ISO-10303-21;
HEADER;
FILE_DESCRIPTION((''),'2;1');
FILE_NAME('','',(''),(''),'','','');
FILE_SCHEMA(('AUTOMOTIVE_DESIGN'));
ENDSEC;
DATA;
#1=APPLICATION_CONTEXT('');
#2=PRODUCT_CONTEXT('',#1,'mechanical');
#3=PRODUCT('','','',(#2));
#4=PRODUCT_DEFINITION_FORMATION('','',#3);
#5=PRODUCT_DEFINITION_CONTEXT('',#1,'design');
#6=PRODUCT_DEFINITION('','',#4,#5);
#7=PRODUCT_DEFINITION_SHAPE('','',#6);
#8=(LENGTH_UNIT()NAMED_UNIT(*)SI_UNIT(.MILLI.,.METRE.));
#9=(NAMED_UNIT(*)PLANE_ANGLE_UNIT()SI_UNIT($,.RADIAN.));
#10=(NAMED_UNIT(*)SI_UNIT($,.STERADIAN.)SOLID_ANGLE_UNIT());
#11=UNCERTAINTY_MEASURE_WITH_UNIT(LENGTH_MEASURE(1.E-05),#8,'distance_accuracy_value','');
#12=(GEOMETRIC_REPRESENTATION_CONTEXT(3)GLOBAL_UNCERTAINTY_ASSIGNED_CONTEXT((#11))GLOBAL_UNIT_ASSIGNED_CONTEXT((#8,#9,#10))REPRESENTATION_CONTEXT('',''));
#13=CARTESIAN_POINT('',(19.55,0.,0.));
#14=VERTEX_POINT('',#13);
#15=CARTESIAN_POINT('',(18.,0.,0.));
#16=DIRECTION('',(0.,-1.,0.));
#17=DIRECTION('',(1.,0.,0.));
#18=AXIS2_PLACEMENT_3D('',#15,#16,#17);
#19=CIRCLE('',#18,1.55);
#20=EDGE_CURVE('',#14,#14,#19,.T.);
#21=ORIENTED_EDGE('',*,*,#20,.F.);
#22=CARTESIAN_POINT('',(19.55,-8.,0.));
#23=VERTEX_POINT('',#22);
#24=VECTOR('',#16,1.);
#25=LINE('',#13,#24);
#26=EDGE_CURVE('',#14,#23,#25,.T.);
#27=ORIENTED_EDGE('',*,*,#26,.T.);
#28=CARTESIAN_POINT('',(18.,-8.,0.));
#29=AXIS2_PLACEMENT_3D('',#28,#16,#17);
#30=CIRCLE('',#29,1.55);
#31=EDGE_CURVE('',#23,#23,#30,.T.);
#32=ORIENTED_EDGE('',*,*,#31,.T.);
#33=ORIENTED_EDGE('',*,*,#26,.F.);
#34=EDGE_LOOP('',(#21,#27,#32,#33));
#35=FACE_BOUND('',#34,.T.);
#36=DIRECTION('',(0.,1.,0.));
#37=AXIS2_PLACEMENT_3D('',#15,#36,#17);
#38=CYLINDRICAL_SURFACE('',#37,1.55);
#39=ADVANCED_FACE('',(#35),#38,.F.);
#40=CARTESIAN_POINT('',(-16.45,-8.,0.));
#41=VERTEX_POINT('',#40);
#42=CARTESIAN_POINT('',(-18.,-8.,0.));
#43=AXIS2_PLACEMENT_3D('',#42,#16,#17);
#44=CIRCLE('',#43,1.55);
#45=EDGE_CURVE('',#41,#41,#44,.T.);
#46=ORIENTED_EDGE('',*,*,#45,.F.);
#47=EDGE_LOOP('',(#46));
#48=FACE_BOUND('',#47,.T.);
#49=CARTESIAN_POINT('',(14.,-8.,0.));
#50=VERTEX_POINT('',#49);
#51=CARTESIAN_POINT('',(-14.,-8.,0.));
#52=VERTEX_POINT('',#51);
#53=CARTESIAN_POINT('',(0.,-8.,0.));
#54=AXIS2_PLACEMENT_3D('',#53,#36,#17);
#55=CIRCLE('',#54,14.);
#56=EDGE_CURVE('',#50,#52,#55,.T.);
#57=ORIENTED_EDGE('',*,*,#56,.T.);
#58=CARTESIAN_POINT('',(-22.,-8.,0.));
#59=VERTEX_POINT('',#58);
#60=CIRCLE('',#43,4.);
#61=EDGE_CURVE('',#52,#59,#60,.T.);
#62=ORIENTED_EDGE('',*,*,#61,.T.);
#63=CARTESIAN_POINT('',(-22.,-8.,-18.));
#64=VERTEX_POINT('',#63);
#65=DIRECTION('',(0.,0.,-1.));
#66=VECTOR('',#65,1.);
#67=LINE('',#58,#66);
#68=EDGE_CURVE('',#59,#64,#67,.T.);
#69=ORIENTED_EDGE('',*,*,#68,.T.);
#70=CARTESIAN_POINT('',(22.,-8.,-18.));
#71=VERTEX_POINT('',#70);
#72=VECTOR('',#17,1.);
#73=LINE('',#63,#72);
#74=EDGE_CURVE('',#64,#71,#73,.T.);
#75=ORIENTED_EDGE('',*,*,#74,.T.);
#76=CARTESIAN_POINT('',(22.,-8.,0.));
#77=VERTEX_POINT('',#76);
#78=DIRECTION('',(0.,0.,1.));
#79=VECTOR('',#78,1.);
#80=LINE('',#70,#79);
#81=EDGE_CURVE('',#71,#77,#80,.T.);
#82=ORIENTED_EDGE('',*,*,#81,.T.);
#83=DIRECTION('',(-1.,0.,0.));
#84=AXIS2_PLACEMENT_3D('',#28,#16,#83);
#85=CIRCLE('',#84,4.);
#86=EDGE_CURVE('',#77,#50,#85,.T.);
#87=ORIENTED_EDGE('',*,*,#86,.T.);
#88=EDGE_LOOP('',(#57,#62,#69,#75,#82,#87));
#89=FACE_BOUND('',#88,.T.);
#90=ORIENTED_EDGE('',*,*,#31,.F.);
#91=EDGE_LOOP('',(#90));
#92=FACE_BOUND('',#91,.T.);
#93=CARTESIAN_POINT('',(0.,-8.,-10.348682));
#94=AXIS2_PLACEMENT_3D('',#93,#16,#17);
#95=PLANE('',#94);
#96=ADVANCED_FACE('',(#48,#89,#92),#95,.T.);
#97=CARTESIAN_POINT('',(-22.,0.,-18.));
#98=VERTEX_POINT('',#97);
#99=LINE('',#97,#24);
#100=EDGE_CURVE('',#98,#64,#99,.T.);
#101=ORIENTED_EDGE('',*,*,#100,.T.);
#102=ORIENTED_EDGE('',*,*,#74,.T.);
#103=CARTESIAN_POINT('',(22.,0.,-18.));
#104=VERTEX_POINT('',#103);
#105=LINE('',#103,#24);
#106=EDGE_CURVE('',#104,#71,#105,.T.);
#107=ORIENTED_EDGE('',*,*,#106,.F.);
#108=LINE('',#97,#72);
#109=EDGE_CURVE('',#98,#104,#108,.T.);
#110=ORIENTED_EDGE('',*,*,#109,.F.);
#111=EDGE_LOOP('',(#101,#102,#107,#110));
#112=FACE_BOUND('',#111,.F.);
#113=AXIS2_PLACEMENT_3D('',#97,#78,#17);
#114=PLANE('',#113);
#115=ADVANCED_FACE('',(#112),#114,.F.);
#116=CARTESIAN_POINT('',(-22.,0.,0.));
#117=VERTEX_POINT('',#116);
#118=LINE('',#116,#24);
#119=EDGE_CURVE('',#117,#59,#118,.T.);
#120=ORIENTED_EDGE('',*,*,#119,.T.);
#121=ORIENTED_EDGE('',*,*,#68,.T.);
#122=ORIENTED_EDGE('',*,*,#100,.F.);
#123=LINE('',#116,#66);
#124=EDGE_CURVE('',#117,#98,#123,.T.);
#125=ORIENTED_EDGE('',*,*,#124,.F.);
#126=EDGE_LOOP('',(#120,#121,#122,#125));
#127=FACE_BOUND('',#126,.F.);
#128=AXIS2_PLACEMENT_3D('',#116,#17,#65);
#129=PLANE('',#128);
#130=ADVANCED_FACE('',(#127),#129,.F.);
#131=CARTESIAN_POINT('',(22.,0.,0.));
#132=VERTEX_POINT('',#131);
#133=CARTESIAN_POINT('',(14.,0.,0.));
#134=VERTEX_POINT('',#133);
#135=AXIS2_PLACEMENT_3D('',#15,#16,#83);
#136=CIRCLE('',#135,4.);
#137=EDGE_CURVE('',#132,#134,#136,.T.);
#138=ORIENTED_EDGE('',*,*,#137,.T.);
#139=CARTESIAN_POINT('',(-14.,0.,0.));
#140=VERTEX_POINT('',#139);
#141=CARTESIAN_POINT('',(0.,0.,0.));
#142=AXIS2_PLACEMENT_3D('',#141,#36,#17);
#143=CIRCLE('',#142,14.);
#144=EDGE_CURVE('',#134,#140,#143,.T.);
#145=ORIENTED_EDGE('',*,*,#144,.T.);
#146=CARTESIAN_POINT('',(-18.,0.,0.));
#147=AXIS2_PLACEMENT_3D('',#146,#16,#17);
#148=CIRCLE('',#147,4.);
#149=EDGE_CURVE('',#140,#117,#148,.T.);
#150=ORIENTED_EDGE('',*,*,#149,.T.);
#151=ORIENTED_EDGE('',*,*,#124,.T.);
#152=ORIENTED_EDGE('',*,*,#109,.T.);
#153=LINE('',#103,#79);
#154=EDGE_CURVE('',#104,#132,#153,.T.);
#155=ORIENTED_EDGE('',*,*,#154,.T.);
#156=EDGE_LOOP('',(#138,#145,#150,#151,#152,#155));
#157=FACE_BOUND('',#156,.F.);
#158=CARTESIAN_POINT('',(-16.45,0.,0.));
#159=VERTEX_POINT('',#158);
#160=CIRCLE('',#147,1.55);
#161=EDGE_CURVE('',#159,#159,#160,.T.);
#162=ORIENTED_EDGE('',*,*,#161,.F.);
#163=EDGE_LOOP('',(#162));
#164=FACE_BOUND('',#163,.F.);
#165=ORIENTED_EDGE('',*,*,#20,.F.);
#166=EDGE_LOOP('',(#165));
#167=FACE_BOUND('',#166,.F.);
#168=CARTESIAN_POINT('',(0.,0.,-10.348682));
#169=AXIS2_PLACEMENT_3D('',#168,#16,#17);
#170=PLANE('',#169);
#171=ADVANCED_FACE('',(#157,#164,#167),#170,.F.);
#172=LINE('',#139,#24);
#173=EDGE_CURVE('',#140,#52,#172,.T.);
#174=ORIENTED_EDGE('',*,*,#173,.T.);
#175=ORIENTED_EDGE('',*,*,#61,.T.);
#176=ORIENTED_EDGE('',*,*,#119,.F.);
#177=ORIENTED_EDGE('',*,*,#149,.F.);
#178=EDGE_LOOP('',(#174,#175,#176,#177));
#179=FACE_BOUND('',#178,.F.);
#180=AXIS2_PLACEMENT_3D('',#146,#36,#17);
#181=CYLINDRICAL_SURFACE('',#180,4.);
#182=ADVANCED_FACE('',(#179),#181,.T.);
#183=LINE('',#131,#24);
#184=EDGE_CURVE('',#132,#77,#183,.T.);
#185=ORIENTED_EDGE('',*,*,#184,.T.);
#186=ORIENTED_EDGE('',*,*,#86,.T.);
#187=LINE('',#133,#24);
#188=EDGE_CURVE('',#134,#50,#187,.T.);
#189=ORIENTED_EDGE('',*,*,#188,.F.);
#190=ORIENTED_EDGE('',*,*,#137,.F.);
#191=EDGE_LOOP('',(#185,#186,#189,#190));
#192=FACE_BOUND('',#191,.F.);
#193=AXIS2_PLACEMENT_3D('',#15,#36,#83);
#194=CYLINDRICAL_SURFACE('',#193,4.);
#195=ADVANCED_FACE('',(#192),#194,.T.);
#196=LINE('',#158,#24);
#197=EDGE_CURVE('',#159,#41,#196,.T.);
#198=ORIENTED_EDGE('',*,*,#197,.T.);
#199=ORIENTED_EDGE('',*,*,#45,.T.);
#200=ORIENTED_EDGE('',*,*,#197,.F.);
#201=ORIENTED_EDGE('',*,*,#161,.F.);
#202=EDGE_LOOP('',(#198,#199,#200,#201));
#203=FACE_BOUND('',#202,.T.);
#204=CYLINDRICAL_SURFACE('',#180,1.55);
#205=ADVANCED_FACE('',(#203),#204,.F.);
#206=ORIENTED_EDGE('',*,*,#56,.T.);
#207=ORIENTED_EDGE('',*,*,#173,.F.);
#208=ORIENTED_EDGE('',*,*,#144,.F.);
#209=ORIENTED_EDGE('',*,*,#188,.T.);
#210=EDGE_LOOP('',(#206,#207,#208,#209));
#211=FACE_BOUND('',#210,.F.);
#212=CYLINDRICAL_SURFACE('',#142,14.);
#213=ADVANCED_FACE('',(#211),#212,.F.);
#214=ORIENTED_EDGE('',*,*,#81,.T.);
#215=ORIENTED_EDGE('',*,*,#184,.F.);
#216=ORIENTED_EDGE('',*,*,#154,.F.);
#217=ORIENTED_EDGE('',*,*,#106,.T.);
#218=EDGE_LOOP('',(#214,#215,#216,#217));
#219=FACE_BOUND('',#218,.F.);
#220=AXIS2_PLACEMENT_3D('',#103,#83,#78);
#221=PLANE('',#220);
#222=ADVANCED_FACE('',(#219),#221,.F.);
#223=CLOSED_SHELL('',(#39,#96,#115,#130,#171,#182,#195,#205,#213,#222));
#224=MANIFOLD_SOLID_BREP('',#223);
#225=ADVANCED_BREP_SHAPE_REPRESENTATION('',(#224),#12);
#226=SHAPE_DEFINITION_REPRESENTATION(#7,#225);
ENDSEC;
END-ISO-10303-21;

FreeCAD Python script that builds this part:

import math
import FreeCAD as App
import Part
import Sketcher
from FreeCAD import Vector
Q = App.Units.Quantity

doc = App.newDocument("Part")
body = doc.addObject("PartDesign::Body", "Body")

# Sketch on XZ plane
sketch1 = body.newObject("Sketcher::SketchObject", "Sketch")
sketch1.AttachmentSupport = (doc.getObject("XZ_Plane"), [""])
sketch1.MapMode = "FlatFace"
sketch1.addGeometry([
    Part.ArcOfCircle(Part.Circle(Vector(0, 0, 0), Vector(0, 0, 1), 14), math.radians(180), math.radians(360)),  # 0
    Part.ArcOfCircle(Part.Circle(Vector(-18, 0, 0), Vector(0, 0, 1), 4), math.radians(0), math.radians(180)),  # 1
    Part.LineSegment(Vector(-22, 0, 0), Vector(-22, -18, 0)),  # 2
    Part.LineSegment(Vector(-22, -18, 0), Vector(22, -18, 0)),  # 3
    Part.LineSegment(Vector(22, -18, 0), Vector(22, 0, 0)),  # 4
    Part.ArcOfCircle(Part.Circle(Vector(18, 0, 0), Vector(0, 0, 1), 4), math.radians(0), math.radians(180)),  # 5
    Part.Circle(Vector(-18, 0, 0), Vector(0, 0, 1), 1.6),  # 6
    Part.Circle(Vector(18, 0, 0), Vector(0, 0, 1), 1.6),  # 7
], False)
sketch1.addConstraint([
    Sketcher.Constraint("Tangent", 0, 1, 1, 1),
    Sketcher.Constraint("Tangent", 1, 2, 2, 1),
    Sketcher.Constraint("Coincident", 2, 2, 3, 1),
    Sketcher.Constraint("Coincident", 3, 2, 4, 1),
    Sketcher.Constraint("Tangent", 4, 2, 5, 1),
    Sketcher.Constraint("Tangent", 5, 2, 0, 2),
    Sketcher.Constraint("Vertical", 2),
    Sketcher.Constraint("Horizontal", 3),
    Sketcher.Constraint("Vertical", 4),
    Sketcher.Constraint("Coincident", 0, 3, -1, 1),
    Sketcher.Constraint("Coincident", 6, 3, 1, 3),
    Sketcher.Constraint("Coincident", 7, 3, 5, 3),
    Sketcher.Constraint("Equal", 1, 5),
    Sketcher.Constraint("Equal", 6, 7),
    Sketcher.Constraint("PointOnObject", 1, 3, -1),
    Sketcher.Constraint("PointOnObject", 5, 3, -1),
    Sketcher.Constraint("Radius", 0, Q("14 mm")),
    Sketcher.Constraint("Radius", 1, Q("4 mm")),
    Sketcher.Constraint("Diameter", 6, Q("3.1 mm")),
    Sketcher.Constraint("DistanceY", 2, 2, 2, 1, Q("18 mm")),
])
pad1 = body.newObject("PartDesign::Pad", "Pad")
pad1.Profile = sketch1
pad1.Length = 8

doc.recompute()
